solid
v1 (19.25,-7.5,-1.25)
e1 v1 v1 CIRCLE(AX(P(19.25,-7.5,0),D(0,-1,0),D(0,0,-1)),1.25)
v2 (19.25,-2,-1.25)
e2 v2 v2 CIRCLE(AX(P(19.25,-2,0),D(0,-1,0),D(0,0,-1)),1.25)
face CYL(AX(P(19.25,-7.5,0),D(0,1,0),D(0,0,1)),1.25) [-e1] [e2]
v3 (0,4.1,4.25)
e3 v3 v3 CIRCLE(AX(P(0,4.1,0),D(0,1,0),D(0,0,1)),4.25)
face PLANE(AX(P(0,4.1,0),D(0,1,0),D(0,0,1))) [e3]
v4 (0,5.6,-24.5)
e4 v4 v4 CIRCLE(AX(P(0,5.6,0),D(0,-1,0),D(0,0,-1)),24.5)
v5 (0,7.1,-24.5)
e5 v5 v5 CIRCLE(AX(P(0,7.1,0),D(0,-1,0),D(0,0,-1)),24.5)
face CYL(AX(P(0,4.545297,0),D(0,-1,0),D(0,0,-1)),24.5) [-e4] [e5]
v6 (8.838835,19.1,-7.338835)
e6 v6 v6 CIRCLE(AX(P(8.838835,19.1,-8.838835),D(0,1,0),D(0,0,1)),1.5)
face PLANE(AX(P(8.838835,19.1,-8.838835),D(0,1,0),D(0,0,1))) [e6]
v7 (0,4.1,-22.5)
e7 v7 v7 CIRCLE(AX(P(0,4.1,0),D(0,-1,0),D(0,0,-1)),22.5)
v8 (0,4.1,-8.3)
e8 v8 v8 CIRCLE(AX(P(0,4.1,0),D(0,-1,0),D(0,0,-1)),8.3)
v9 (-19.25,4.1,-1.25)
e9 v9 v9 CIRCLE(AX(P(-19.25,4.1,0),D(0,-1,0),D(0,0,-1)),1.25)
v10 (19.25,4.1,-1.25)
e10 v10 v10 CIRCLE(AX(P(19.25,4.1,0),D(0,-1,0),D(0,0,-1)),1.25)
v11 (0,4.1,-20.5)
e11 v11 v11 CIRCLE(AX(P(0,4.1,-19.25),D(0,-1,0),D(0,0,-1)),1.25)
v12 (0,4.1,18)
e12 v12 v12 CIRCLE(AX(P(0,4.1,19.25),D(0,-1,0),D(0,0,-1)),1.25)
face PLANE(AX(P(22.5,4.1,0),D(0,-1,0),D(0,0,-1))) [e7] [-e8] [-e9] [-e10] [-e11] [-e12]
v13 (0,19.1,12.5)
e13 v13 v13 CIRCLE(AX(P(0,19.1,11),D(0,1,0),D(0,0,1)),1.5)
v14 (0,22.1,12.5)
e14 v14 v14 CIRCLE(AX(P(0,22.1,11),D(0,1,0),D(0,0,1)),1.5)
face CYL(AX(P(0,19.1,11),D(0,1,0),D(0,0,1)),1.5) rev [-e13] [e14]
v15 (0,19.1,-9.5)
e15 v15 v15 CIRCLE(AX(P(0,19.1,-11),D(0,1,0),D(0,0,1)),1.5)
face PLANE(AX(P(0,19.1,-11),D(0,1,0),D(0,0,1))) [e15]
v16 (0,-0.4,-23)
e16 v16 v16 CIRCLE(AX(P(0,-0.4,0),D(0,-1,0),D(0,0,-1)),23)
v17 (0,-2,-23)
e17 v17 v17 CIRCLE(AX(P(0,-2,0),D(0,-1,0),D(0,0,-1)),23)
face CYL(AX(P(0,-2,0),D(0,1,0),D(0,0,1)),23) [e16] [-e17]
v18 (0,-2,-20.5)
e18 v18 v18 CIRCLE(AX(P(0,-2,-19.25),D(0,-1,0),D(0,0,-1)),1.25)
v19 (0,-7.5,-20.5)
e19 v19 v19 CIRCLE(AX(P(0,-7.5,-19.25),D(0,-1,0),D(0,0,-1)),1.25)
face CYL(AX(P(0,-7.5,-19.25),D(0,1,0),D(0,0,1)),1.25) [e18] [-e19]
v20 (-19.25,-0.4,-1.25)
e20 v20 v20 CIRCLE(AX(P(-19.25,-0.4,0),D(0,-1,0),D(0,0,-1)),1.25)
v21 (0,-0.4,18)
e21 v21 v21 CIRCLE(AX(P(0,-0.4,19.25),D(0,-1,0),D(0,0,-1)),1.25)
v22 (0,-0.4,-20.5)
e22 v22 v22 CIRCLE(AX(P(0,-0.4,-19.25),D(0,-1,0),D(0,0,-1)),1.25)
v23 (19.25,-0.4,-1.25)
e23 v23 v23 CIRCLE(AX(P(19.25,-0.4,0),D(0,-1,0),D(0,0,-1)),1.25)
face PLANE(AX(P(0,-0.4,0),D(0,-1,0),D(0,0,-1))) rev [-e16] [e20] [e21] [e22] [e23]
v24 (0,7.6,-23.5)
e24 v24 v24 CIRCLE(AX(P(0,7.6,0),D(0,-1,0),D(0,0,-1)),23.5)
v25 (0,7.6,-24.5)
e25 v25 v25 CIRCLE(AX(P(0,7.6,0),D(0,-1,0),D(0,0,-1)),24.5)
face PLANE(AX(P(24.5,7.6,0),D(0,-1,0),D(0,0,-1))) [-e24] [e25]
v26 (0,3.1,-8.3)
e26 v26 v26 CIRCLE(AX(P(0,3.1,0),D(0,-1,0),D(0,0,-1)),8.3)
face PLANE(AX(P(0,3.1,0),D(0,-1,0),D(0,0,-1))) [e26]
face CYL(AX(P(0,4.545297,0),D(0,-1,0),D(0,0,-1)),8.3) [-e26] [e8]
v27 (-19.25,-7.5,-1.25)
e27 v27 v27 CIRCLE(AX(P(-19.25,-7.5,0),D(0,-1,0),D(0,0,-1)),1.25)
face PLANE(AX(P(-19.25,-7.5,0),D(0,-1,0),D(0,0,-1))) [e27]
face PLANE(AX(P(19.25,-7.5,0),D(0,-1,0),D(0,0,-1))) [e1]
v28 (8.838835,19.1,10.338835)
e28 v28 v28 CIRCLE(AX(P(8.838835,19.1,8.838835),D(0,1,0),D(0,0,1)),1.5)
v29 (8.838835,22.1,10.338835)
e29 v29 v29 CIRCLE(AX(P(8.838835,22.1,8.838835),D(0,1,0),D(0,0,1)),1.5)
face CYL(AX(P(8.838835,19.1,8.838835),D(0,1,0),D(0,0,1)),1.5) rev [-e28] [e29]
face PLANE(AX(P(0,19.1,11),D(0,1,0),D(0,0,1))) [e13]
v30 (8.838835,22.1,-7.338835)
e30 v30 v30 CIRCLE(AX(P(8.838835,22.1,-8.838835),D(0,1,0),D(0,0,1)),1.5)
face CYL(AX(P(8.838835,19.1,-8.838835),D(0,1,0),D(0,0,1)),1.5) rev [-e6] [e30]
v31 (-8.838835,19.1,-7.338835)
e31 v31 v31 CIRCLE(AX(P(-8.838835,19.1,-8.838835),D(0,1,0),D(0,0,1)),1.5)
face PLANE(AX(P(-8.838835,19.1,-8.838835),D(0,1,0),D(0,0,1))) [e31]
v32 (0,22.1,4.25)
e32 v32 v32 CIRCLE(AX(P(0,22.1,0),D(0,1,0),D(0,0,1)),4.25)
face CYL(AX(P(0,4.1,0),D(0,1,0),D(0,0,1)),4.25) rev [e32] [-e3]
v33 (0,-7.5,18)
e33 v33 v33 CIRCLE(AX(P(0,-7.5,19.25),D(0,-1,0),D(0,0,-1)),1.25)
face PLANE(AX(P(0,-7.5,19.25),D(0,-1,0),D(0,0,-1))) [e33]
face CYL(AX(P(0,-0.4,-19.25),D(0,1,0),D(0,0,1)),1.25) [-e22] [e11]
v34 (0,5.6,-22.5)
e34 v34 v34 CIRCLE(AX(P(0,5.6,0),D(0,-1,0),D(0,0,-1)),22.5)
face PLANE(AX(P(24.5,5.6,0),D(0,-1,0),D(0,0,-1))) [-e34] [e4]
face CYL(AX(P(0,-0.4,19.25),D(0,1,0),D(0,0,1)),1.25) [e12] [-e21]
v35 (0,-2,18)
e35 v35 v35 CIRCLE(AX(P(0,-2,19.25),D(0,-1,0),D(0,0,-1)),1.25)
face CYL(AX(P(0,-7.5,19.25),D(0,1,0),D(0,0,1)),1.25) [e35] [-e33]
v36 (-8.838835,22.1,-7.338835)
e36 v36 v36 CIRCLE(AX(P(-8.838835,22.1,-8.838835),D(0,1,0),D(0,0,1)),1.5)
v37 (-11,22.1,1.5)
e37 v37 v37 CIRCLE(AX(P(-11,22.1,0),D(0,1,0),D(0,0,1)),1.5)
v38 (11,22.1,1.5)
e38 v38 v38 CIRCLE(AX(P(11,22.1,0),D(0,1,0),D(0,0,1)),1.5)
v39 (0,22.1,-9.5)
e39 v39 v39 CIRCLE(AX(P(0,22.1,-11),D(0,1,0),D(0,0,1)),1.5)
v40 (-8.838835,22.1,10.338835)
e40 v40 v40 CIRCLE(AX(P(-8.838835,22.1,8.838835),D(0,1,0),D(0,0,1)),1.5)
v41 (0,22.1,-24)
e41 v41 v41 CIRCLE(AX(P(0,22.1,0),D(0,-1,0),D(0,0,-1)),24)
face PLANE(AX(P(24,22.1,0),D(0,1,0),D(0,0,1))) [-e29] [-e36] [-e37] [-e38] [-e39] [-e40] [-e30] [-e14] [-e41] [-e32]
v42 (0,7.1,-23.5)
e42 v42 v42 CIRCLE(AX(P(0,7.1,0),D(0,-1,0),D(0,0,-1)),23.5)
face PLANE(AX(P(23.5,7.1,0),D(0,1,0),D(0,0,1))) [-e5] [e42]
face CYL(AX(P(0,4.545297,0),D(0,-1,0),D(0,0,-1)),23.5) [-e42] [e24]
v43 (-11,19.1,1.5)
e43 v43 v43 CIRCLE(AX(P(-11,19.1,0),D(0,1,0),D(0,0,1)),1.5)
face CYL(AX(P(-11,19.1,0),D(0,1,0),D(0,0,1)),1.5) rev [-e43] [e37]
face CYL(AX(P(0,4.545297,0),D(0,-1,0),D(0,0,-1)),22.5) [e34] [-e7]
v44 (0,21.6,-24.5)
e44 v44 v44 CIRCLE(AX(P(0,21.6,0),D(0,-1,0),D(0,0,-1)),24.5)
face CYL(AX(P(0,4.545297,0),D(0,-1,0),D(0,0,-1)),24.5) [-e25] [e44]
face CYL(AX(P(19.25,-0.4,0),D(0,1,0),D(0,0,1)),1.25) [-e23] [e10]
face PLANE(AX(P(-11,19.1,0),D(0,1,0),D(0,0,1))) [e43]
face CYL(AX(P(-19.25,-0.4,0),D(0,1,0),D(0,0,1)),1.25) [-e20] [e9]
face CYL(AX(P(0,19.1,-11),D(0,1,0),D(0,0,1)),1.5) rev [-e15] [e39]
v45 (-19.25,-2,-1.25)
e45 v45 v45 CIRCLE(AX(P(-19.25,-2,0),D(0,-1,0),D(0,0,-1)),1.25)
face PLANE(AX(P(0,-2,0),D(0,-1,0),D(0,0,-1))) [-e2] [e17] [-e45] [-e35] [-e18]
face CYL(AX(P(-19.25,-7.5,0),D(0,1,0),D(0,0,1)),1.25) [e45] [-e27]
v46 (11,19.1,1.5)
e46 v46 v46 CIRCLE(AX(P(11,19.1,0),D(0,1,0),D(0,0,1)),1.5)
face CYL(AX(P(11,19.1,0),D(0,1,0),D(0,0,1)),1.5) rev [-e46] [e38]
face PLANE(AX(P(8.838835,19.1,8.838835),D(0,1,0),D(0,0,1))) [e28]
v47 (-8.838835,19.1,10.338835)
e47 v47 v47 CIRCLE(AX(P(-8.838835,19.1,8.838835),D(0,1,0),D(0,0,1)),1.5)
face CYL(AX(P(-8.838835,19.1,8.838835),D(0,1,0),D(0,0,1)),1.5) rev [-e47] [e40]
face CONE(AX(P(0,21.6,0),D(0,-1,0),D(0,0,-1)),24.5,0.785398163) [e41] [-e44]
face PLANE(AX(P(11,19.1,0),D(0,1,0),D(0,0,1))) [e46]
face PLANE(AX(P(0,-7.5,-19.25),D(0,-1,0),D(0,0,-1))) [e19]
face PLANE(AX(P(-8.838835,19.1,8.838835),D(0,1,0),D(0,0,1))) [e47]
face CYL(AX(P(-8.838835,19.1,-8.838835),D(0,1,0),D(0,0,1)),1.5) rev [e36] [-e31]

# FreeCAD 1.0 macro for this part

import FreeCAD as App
import Part
import Sketcher

V = App.Vector
Q = App.Units.Quantity


def add_polygon(sketch, points):
    """Adds a closed chain of lines whose ends are joined by coincident constraints."""
    first, n = sketch.GeometryCount, len(points)
    for a, b in zip(points, points[1:] + points[:1]):
        sketch.addGeometry(Part.LineSegment(App.Vector(*a, 0), App.Vector(*b, 0)), False)
    for i in range(n):
        sketch.addConstraint(Sketcher.Constraint("Coincident", first + i, 2, first + (i + 1) % n, 1))

doc = App.newDocument("Part")
params = doc.addObject("Spreadsheet::Sheet", "Params")
for row, (alias, value) in enumerate([
    ("sketch1_width", "24 mm"),
    ("sketch1_width2", "2 mm"),
    ("sketch1_width3", "1 mm"),
    ("sketch1_height", "19 mm"),
    ("sketch1_height2", "14 mm"),
    ("revolution_angle", "360 deg"),
    ("sketch2_diameter", "3 mm"),
    ("pocket1_length", "3 mm"),
    ("sketch3_diameter", "8.5 mm"),
    ("pocket2_length", "18 mm"),
    ("sketch4_diameter", "2.5 mm"),
    ("pad1_length", "4.5 mm"),
    ("sketch5_diameter", "46 mm"),
    ("pad2_length", "1.6 mm"),
    ("sketch6_diameter", "2.5 mm"),
    ("pad3_length", "5.5 mm"),
], start=1):
    params.set(f"A{row}", alias)
    params.set(f"B{row}", "=" + value)
    params.setAlias(f"B{row}", alias)

body = doc.addObject("PartDesign::Body", "Body")

sketch1 = body.newObject("Sketcher::SketchObject", "Sketch")
sketch1.AttachmentSupport = (doc.getObject("XY_Plane"), [""])
sketch1.MapMode = "FlatFace"
add_polygon(sketch1, [(24, 22.1), (0, 22.1), (0, 3.1), (8.3, 3.1), (8.3, 4.1), (22.5, 4.1), (22.5, 5.6), (24.5, 5.6), (24.5, 7.1), (23.5, 7.1), (23.5, 7.6), (24.5, 7.6), (24.5, 21.6)])
sketch1.addConstraint([
    Sketcher.Constraint("Horizontal", 0),
    Sketcher.Constraint("Vertical", 1),
    Sketcher.Constraint("Horizontal", 2),
    Sketcher.Constraint("Vertical", 3),
    Sketcher.Constraint("Horizontal", 4),
    Sketcher.Constraint("Vertical", 5),
    Sketcher.Constraint("Horizontal", 6),
    Sketcher.Constraint("Vertical", 7),
    Sketcher.Constraint("Horizontal", 8),
    Sketcher.Constraint("Vertical", 9),
    Sketcher.Constraint("Horizontal", 10),
    Sketcher.Constraint("Vertical", 11),
    Sketcher.Constraint("PointOnObject", 0, 2, -2),
    Sketcher.Constraint("Vertical", 7, 2, 10, 2),
    Sketcher.Constraint("Equal", 10, 3),
    Sketcher.Constraint("Equal", 5, 7),
    Sketcher.Constraint("DistanceX", 0, 2, 0, 1, Q("24 mm")),
    Sketcher.Constraint("DistanceX", 6, 1, 6, 2, Q("2 mm")),
    Sketcher.Constraint("DistanceX", 8, 2, 8, 1, Q("1 mm")),
    Sketcher.Constraint("DistanceY", 1, 2, 1, 1, Q("19 mm")),
    Sketcher.Constraint("DistanceY", 11, 1, 11, 2, Q("14 mm")),
    Sketcher.Constraint("Angle", 12, Q("135 deg")),
    Sketcher.Constraint("DistanceX", 2, 1, 2, 2, Q("8.3 mm")),
    Sketcher.Constraint("DistanceX", 4, 1, 4, 2, Q("14.2 mm")),
    Sketcher.Constraint("DistanceY", 5, 1, 5, 2, Q("1.5 mm")),
    Sketcher.Constraint("DistanceY", -1, 1, 0, 2, Q("22.1 mm")),
])
sketch1.setExpression("Constraints[29]", "Params.sketch1_width")
sketch1.setExpression("Constraints[30]", "Params.sketch1_width2")
sketch1.setExpression("Constraints[31]", "Params.sketch1_width3")
sketch1.setExpression("Constraints[32]", "Params.sketch1_height")
sketch1.setExpression("Constraints[33]", "Params.sketch1_height2")
revolution = body.newObject("PartDesign::Revolution", "Revolution")
revolution.Profile = sketch1
revolution.ReferenceAxis = (sketch1, ["V_Axis"])
revolution.setExpression("Angle", "Params.revolution_angle")

sketch2 = body.newObject("Sketcher::SketchObject", "Sketch001")
sketch2.AttachmentSupport = (doc.getObject("XZ_Plane"), [""])
sketch2.MapMode = "FlatFace"
sketch2.AttachmentOffset = App.Placement(V(0, 0, -22.1), App.Rotation())
sketch2.addGeometry([
    Part.Circle(V(0, -11, 0), V(0, 0, 1), 1.5),
    Part.Circle(V(11, 0, 0), V(0, 0, 1), 1.5),
    Part.Circle(V(0, 11, 0), V(0, 0, 1), 1.5),
    Part.Circle(V(-11, 0, 0), V(0, 0, 1), 1.5),
    Part.Circle(V(8.8, -8.8, 0), V(0, 0, 1), 1.5),
    Part.Circle(V(8.8, 8.8, 0), V(0, 0, 1), 1.5),
    Part.Circle(V(-8.8, 8.8, 0), V(0, 0, 1), 1.5),
    Part.Circle(V(-8.8, -8.8, 0), V(0, 0, 1), 1.5),
], False)
sketch2.addConstraint([
    Sketcher.Constraint("Equal", 0, 1),
    Sketcher.Constraint("Equal", 1, 2),
    Sketcher.Constraint("Equal", 2, 3),
    Sketcher.Constraint("Equal", 3, 4),
    Sketcher.Constraint("Equal", 4, 5),
    Sketcher.Constraint("Equal", 5, 6),
    Sketcher.Constraint("Equal", 6, 7),
    Sketcher.Constraint("Symmetric", 0, 3, 2, 3, -1, 1),
    Sketcher.Constraint("Symmetric", 1, 3, 3, 3, -1, 1),
    Sketcher.Constraint("Symmetric", 4, 3, 6, 3, -1, 1),
    Sketcher.Constraint("Symmetric", 5, 3, 7, 3, -1, 1),
    Sketcher.Constraint("Symmetric", 5, 3, 6, 3, -2),
    Sketcher.Constraint("PointOnObject", 0, 3, -2),
    Sketcher.Constraint("PointOnObject", 1, 3, -1),
    Sketcher.Constraint("Diameter", 0, Q("3 mm")),
    Sketcher.Constraint("DistanceY", 0, 3, -1, 1, Q("11 mm")),
    Sketcher.Constraint("DistanceX", -1, 1, 1, 3, Q("11 mm")),
    Sketcher.Constraint("DistanceY", 4, 3, 5, 3, Q("17.67767 mm")),
    Sketcher.Constraint("DistanceX", 6, 3, 5, 3, Q("17.67767 mm")),
])
sketch2.setExpression("Constraints[14]", "Params.sketch2_diameter")
pocket1 = body.newObject("PartDesign::Pocket", "Pocket")
pocket1.Profile = sketch2
pocket1.setExpression("Length", "Params.pocket1_length")
pocket1.Reversed = True

sketch3 = body.newObject("Sketcher::SketchObject", "Sketch002")
sketch3.AttachmentSupport = (doc.getObject("XZ_Plane"), [""])
sketch3.MapMode = "FlatFace"
sketch3.AttachmentOffset = App.Placement(V(0, 0, -22.1), App.Rotation())
sketch3.addGeometry(Part.Circle(V(0, 0, 0), V(0, 0, 1), 4.2), False)
sketch3.addConstraint([
    Sketcher.Constraint("Coincident", 0, 3, -1, 1),
    Sketcher.Constraint("Diameter", 0, Q("8.5 mm")),
])
sketch3.setExpression("Constraints[1]", "Params.sketch3_diameter")
pocket2 = body.newObject("PartDesign::Pocket", "Pocket001")
pocket2.Profile = sketch3
pocket2.setExpression("Length", "Params.pocket2_length")
pocket2.Reversed = True

sketch4 = body.newObject("Sketcher::SketchObject", "Sketch003")
sketch4.AttachmentSupport = (doc.getObject("XZ_Plane"), [""])
sketch4.MapMode = "FlatFace"
sketch4.AttachmentOffset = App.Placement(V(0, 0, -4.1), App.Rotation())
sketch4.addGeometry([
    Part.Circle(V(0, 19.2, 0), V(0, 0, 1), 1.2),
    Part.Circle(V(19.2, 0, 0), V(0, 0, 1), 1.2),
    Part.Circle(V(0, -19.2, 0), V(0, 0, 1), 1.2),
    Part.Circle(V(-19.2, 0, 0), V(0, 0, 1), 1.2),
], False)
sketch4.addConstraint([
    Sketcher.Constraint("Equal", 0, 1),
    Sketcher.Constraint("Equal", 1, 2),
    Sketcher.Constraint("Equal", 2, 3),
    Sketcher.Constraint("Symmetric", 0, 3, 2, 3, -1, 1),
    Sketcher.Constraint("Symmetric", 1, 3, 3, 3, -1, 1),
    Sketcher.Constraint("PointOnObject", 0, 3, -2),
    Sketcher.Constraint("PointOnObject", 1, 3, -1),
    Sketcher.Constraint("Diameter", 0, Q("2.5 mm")),
    Sketcher.Constraint("DistanceY", 2, 3, 0, 3, Q("38.5 mm")),
    Sketcher.Constraint("DistanceX", 3, 3, 1, 3, Q("38.5 mm")),
])
sketch4.setExpression("Constraints[7]", "Params.sketch4_diameter")
pad1 = body.newObject("PartDesign::Pad", "Pad")
pad1.Profile = sketch4
pad1.setExpression("Length", "Params.pad1_length")

sketch5 = body.newObject("Sketcher::SketchObject", "Sketch004")
sketch5.AttachmentSupport = (doc.getObject("XZ_Plane"), [""])
sketch5.MapMode = "FlatFace"
sketch5.AttachmentOffset = App.Placement(V(0, 0, 0.4), App.Rotation())
sketch5.addGeometry(Part.Circle(V(0, 0, 0), V(0, 0, 1), 23), False)
sketch5.addConstraint([
    Sketcher.Constraint("Coincident", 0, 3, -1, 1),
    Sketcher.Constraint("Diameter", 0, Q("46 mm")),
])
sketch5.setExpression("Constraints[1]", "Params.sketch5_diameter")
pad2 = body.newObject("PartDesign::Pad", "Pad001")
pad2.Profile = sketch5
pad2.setExpression("Length", "Params.pad2_length")

sketch6 = body.newObject("Sketcher::SketchObject", "Sketch005")
sketch6.AttachmentSupport = (doc.getObject("XZ_Plane"), [""])
sketch6.MapMode = "FlatFace"
sketch6.AttachmentOffset = App.Placement(V(0, 0, 2), App.Rotation())
sketch6.addGeometry([
    Part.Circle(V(0, 19.2, 0), V(0, 0, 1), 1.2),
    Part.Circle(V(19.2, 0, 0), V(0, 0, 1), 1.2),
    Part.Circle(V(0, -19.2, 0), V(0, 0, 1), 1.2),
    Part.Circle(V(-19.2, 0, 0), V(0, 0, 1), 1.2),
], False)
sketch6.addConstraint([
    Sketcher.Constraint("Equal", 0, 1),
    Sketcher.Constraint("Equal", 1, 2),
    Sketcher.Constraint("Equal", 2, 3),
    Sketcher.Constraint("Symmetric", 0, 3, 2, 3, -1, 1),
    Sketcher.Constraint("Symmetric", 1, 3, 3, 3, -1, 1),
    Sketcher.Constraint("PointOnObject", 0, 3, -2),
    Sketcher.Constraint("PointOnObject", 1, 3, -1),
    Sketcher.Constraint("Diameter", 0, Q("2.5 mm")),
    Sketcher.Constraint("DistanceY", 2, 3, 0, 3, Q("38.5 mm")),
    Sketcher.Constraint("DistanceX", 3, 3, 1, 3, Q("38.5 mm")),
])
sketch6.setExpression("Constraints[7]", "Params.sketch6_diameter")
pad3 = body.newObject("PartDesign::Pad", "Pad002")
pad3.Profile = sketch6
pad3.setExpression("Length", "Params.pad3_length")

doc.recompute()
